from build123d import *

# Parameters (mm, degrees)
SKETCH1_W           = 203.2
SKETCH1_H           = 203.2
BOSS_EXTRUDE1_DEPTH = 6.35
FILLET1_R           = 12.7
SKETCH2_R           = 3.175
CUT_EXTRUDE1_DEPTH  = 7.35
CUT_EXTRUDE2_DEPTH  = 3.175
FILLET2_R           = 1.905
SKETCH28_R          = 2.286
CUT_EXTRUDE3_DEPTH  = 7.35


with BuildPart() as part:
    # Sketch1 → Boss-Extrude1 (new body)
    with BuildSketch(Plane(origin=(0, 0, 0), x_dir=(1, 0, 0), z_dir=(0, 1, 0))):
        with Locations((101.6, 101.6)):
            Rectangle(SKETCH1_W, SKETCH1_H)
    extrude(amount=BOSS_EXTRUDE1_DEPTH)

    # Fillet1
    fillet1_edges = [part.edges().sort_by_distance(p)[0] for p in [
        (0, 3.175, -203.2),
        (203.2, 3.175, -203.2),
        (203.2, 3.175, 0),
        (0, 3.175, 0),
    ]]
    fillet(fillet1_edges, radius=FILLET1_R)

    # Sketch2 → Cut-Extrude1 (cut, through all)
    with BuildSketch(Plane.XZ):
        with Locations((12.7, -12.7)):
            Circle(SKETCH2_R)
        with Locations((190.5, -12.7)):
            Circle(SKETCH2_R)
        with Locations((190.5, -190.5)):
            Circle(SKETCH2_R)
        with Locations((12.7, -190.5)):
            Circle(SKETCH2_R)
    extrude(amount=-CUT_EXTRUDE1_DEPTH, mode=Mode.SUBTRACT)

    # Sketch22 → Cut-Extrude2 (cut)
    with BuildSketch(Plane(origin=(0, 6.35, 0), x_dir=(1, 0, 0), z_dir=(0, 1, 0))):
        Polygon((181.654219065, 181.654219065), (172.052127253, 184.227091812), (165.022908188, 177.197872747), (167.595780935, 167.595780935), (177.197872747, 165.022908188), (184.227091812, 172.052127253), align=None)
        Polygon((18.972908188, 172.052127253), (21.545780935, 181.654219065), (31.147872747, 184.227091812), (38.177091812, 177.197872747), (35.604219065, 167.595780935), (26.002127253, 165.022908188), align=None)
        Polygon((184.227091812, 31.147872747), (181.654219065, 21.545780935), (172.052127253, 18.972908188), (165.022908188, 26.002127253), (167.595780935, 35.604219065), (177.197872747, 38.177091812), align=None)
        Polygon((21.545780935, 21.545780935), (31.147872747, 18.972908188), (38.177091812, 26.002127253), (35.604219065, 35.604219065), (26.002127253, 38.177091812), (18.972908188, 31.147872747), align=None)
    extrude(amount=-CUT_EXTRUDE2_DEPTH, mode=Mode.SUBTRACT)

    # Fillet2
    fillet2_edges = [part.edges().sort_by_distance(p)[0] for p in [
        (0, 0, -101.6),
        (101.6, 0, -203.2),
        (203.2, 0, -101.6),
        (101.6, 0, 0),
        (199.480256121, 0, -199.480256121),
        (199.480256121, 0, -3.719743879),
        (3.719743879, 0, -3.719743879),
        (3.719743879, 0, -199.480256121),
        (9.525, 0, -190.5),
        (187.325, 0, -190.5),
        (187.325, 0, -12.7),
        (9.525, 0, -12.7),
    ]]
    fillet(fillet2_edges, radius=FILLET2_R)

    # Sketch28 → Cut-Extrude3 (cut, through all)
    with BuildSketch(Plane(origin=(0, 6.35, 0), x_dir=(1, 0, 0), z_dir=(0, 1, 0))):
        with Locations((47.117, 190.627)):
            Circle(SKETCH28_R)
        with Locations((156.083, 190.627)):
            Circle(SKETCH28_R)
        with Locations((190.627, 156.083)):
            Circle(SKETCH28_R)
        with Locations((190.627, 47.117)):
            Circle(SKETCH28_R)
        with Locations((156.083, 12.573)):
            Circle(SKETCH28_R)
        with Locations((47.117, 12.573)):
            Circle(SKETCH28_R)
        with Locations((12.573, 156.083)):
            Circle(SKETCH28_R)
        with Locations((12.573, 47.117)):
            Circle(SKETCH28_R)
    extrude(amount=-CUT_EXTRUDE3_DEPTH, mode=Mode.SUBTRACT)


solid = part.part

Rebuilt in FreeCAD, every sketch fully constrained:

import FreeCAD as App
import Part
import Sketcher

V = App.Vector
Q = App.Units.Quantity


def edges_at(feature, points):
    """Names of the edges that pass closest to the given points."""
    edges = feature.Shape.Edges
    near = lambda p: min(range(len(edges)), key=lambda i: edges[i].distToShape(Part.Vertex(*p))[0])
    return sorted({f"Edge{near(p) + 1}" for p in points})

doc = App.newDocument("Part")
body = doc.addObject("PartDesign::Body", "Body")

sketch1 = body.newObject("Sketcher::SketchObject", "Sketch")
sketch1.AttachmentSupport = (doc.getObject("XZ_Plane"), [""])
sketch1.MapMode = "FlatFace"
sketch1.addGeometry(Part.LineSegment(V(0, -203, 0), V(0, 0, 0)), False)
sketch1.addGeometry(Part.LineSegment(V(0, 0, 0), V(203, 0, 0)), False)
sketch1.addGeometry(Part.LineSegment(V(203, 0, 0), V(203, -203, 0)), False)
sketch1.addGeometry(Part.LineSegment(V(203, -203, 0), V(0, -203, 0)), False)
sketch1.addConstraint(Sketcher.Constraint("Coincident", 0, 2, 1, 1))
sketch1.addConstraint(Sketcher.Constraint("Coincident", 1, 2, 2, 1))
sketch1.addConstraint(Sketcher.Constraint("Coincident", 2, 2, 3, 1))
sketch1.addConstraint(Sketcher.Constraint("Coincident", 3, 2, 0, 1))
sketch1.addConstraint(Sketcher.Constraint("Vertical", 0))
sketch1.addConstraint(Sketcher.Constraint("Horizontal", 1))
sketch1.addConstraint(Sketcher.Constraint("Vertical", 2))
sketch1.addConstraint(Sketcher.Constraint("Horizontal", 3))
sketch1.addConstraint(Sketcher.Constraint("Coincident", 0, 2, -1, 1))
sketch1.addConstraint(Sketcher.Constraint("Equal", 3, 0))
sketch1.addConstraint(Sketcher.Constraint("DistanceX", 1, 1, 1, 2, Q("8 in")))
pad1 = body.newObject("PartDesign::Pad", "Pad")
pad1.Profile = sketch1
pad1.Length = Q("0.25 in")
pad1.Reversed = True
doc.recompute()

fillet = body.newObject("PartDesign::Fillet", "Fillet")
fillet.Base = (pad1, edges_at(pad1, [
    (0, 3.175, -203.2),
    (203.2, 3.175, -203.2),
    (203.2, 3.175, 0),
    (0, 3.175, 0),
]))
fillet.Radius = Q("0.5 in")

sketch2 = body.newObject("Sketcher::SketchObject", "Sketch001")
sketch2.AttachmentSupport = (doc.getObject("XZ_Plane"), [""])
sketch2.MapMode = "FlatFace"
sketch2.addGeometry(Part.Circle(V(12.7, -12.7, 0), V(0, 0, 1), 3.2), False)
sketch2.addGeometry(Part.Circle(V(190.5, -12.7, 0), V(0, 0, 1), 3.2), False)
sketch2.addGeometry(Part.Circle(V(190.5, -190.5, 0), V(0, 0, 1), 3.2), False)
sketch2.addGeometry(Part.Circle(V(12.7, -190.5, 0), V(0, 0, 1), 3.2), False)
sketch2.addConstraint(Sketcher.Constraint("Equal", 0, 1))
sketch2.addConstraint(Sketcher.Constraint("Equal", 1, 2))
sketch2.addConstraint(Sketcher.Constraint("Equal", 2, 3))
sketch2.addConstraint(Sketcher.Constraint("Horizontal", 0, 3, 1, 3))
sketch2.addConstraint(Sketcher.Constraint("Horizontal", 2, 3, 3, 3))
sketch2.addConstraint(Sketcher.Constraint("Vertical", 1, 3, 2, 3))
sketch2.addConstraint(Sketcher.Constraint("Vertical", 0, 3, 3, 3))
sketch2.addConstraint(Sketcher.Constraint("Diameter", 0, Q("0.25 in")))
sketch2.addConstraint(Sketcher.Constraint("DistanceX", 0, 3, 1, 3, Q("7 in")))
sketch2.addConstraint(Sketcher.Constraint("DistanceY", 2, 3, 1, 3, Q("7 in")))
sketch2.addConstraint(Sketcher.Constraint("DistanceX", -1, 1, 0, 3, Q("0.5 in")))
sketch2.addConstraint(Sketcher.Constraint("DistanceY", 0, 3, -1, 1, Q("0.5 in")))
pocket1 = body.newObject("PartDesign::Pocket", "Pocket")
pocket1.Profile = sketch2
pocket1.Type = "ThroughAll"

sketch3 = body.newObject("Sketcher::SketchObject", "Sketch002")
sketch3.AttachmentSupport = (doc.getObject("XZ_Plane"), [""])
sketch3.MapMode = "FlatFace"
sketch3.AttachmentOffset = App.Placement(V(0, 0, -0.25 * 25.4), App.Rotation())
sketch3.addGeometry(Part.LineSegment(V(182, -182, 0), V(172, -184, 0)), False)
sketch3.addGeometry(Part.LineSegment(V(172, -184, 0), V(165, -177, 0)), False)
sketch3.addGeometry(Part.LineSegment(V(165, -177, 0), V(168, -168, 0)), False)
sketch3.addGeometry(Part.LineSegment(V(168, -168, 0), V(177, -165, 0)), False)
sketch3.addGeometry(Part.LineSegment(V(177, -165, 0), V(184, -172, 0)), False)
sketch3.addGeometry(Part.LineSegment(V(184, -172, 0), V(182, -182, 0)), False)
sketch3.addGeometry(Part.LineSegment(V(22, -182, 0), V(19, -172, 0)), False)
sketch3.addGeometry(Part.LineSegment(V(19, -172, 0), V(26, -165, 0)), False)
sketch3.addGeometry(Part.LineSegment(V(26, -165, 0), V(36, -168, 0)), False)
sketch3.addGeometry(Part.LineSegment(V(36, -168, 0), V(38, -177, 0)), False)
sketch3.addGeometry(Part.LineSegment(V(38, -177, 0), V(31, -184, 0)), False)
sketch3.addGeometry(Part.LineSegment(V(31, -184, 0), V(22, -182, 0)), False)
sketch3.addGeometry(Part.LineSegment(V(182, -22, 0), V(184, -31, 0)), False)
sketch3.addGeometry(Part.LineSegment(V(184, -31, 0), V(177, -38, 0)), False)
sketch3.addGeometry(Part.LineSegment(V(177, -38, 0), V(168, -36, 0)), False)
sketch3.addGeometry(Part.LineSegment(V(168, -36, 0), V(165, -26, 0)), False)
sketch3.addGeometry(Part.LineSegment(V(165, -26, 0), V(172, -19, 0)), False)
sketch3.addGeometry(Part.LineSegment(V(172, -19, 0), V(182, -22, 0)), False)
sketch3.addGeometry(Part.LineSegment(V(22, -22, 0), V(31, -19, 0)), False)
sketch3.addGeometry(Part.LineSegment(V(31, -19, 0), V(38, -26, 0)), False)
sketch3.addGeometry(Part.LineSegment(V(38, -26, 0), V(36, -36, 0)), False)
sketch3.addGeometry(Part.LineSegment(V(36, -36, 0), V(26, -38, 0)), False)
sketch3.addGeometry(Part.LineSegment(V(26, -38, 0), V(19, -31, 0)), False)
sketch3.addGeometry(Part.LineSegment(V(19, -31, 0), V(22, -22, 0)), False)
sketch3.addConstraint(Sketcher.Constraint("Coincident", 0, 2, 1, 1))
sketch3.addConstraint(Sketcher.Constraint("Coincident", 1, 2, 2, 1))
sketch3.addConstraint(Sketcher.Constraint("Coincident", 2, 2, 3, 1))
sketch3.addConstraint(Sketcher.Constraint("Coincident", 3, 2, 4, 1))
sketch3.addConstraint(Sketcher.Constraint("Coincident", 4, 2, 5, 1))
sketch3.addConstraint(Sketcher.Constraint("Coincident", 5, 2, 0, 1))
sketch3.addConstraint(Sketcher.Constraint("Coincident", 6, 2, 7, 1))
sketch3.addConstraint(Sketcher.Constraint("Coincident", 7, 2, 8, 1))
sketch3.addConstraint(Sketcher.Constraint("Coincident", 8, 2, 9, 1))
sketch3.addConstraint(Sketcher.Constraint("Coincident", 9, 2, 10, 1))
sketch3.addConstraint(Sketcher.Constraint("Coincident", 10, 2, 11, 1))
sketch3.addConstraint(Sketcher.Constraint("Coincident", 11, 2, 6, 1))
sketch3.addConstraint(Sketcher.Constraint("Coincident", 12, 2, 13, 1))
sketch3.addConstraint(Sketcher.Constraint("Coincident", 13, 2, 14, 1))
sketch3.addConstraint(Sketcher.Constraint("Coincident", 14, 2, 15, 1))
sketch3.addConstraint(Sketcher.Constraint("Coincident", 15, 2, 16, 1))
sketch3.addConstraint(Sketcher.Constraint("Coincident", 16, 2, 17, 1))
sketch3.addConstraint(Sketcher.Constraint("Coincident", 17, 2, 12, 1))
sketch3.addConstraint(Sketcher.Constraint("Coincident", 18, 2, 19, 1))
sketch3.addConstraint(Sketcher.Constraint("Coincident", 19, 2, 20, 1))
sketch3.addConstraint(Sketcher.Constraint("Coincident", 20, 2, 21, 1))
sketch3.addConstraint(Sketcher.Constraint("Coincident", 21, 2, 22, 1))
sketch3.addConstraint(Sketcher.Constraint("Coincident", 22, 2, 23, 1))
sketch3.addConstraint(Sketcher.Constraint("Coincident", 23, 2, 18, 1))
sketch3.addConstraint(Sketcher.Constraint("Parallel", 0, 3))
sketch3.addConstraint(Sketcher.Constraint("Parallel", 1, 4))
sketch3.addConstraint(Sketcher.Constraint("Parallel", 2, 5))
sketch3.addConstraint(Sketcher.Constraint("Perpendicular", 3, 6))
sketch3.addConstraint(Sketcher.Constraint("Perpendicular", 4, 7))
sketch3.addConstraint(Sketcher.Constraint("Perpendicular", 5, 8))
sketch3.addConstraint(Sketcher.Constraint("Parallel", 6, 9))
sketch3.addConstraint(Sketcher.Constraint("Parallel", 7, 10))
sketch3.addConstraint(Sketcher.Constraint("Parallel", 8, 11))
sketch3.addConstraint(Sketcher.Constraint("Parallel", 9, 12))
sketch3.addConstraint(Sketcher.Constraint("Parallel", 10, 13))
sketch3.addConstraint(Sketcher.Constraint("Parallel", 11, 14))
sketch3.addConstraint(Sketcher.Constraint("Parallel", 12, 15))
sketch3.addConstraint(Sketcher.Constraint("Parallel", 13, 16))
sketch3.addConstraint(Sketcher.Constraint("Parallel", 14, 17))
sketch3.addConstraint(Sketcher.Constraint("Perpendicular", 15, 18))
sketch3.addConstraint(Sketcher.Constraint("Perpendicular", 16, 19))
sketch3.addConstraint(Sketcher.Constraint("Perpendicular", 17, 20))
sketch3.addConstraint(Sketcher.Constraint("Parallel", 18, 21))
sketch3.addConstraint(Sketcher.Constraint("Parallel", 19, 22))
sketch3.addConstraint(Sketcher.Constraint("Parallel", 20, 23))
sketch3.addConstraint(Sketcher.Constraint("Horizontal", 4, 2, 6, 2))
sketch3.addConstraint(Sketcher.Constraint("Horizontal", 3, 2, 7, 2))
sketch3.addConstraint(Sketcher.Constraint("Horizontal", 2, 2, 8, 2))
sketch3.addConstraint(Sketcher.Constraint("Horizontal", 1, 2, 9, 2))
sketch3.addConstraint(Sketcher.Constraint("Horizontal", 0, 2, 10, 2))
sketch3.addConstraint(Sketcher.Constraint("Horizontal", 16, 2, 18, 2))
sketch3.addConstraint(Sketcher.Constraint("Horizontal", 15, 2, 19, 2))
sketch3.addConstraint(Sketcher.Constraint("Horizontal", 14, 2, 20, 2))
sketch3.addConstraint(Sketcher.Constraint("Horizontal", 13, 2, 21, 2))
sketch3.addConstraint(Sketcher.Constraint("Horizontal", 12, 2, 22, 2))
sketch3.addConstraint(Sketcher.Constraint("Vertical", 4, 2, 12, 2))
sketch3.addConstraint(Sketcher.Constraint("Vertical", 3, 2, 13, 2))
sketch3.addConstraint(Sketcher.Constraint("Vertical", 2, 2, 14, 2))
sketch3.addConstraint(Sketcher.Constraint("Vertical", 1, 2, 15, 2))
sketch3.addConstraint(Sketcher.Constraint("Vertical", 0, 2, 16, 2))
sketch3.addConstraint(Sketcher.Constraint("Vertical", 10, 2, 18, 2))
sketch3.addConstraint(Sketcher.Constraint("Vertical", 9, 2, 19, 2))
sketch3.addConstraint(Sketcher.Constraint("Vertical", 8, 2, 20, 2))
sketch3.addConstraint(Sketcher.Constraint("Equal", 0, 1))
sketch3.addConstraint(Sketcher.Constraint("Equal", 1, 2))
sketch3.addConstraint(Sketcher.Constraint("Equal", 2, 3))
sketch3.addConstraint(Sketcher.Constraint("Angle", 0, Q("-165 deg")))
sketch3.addConstraint(Sketcher.Constraint("DistanceX", 6, 2, 1, 2, Q("5.75 in")))
sketch3.addConstraint(Sketcher.Constraint("DistanceY", 1, 2, 12, 2, Q("5.75 in")))
sketch3.addConstraint(Sketcher.Constraint("DistanceY", 0, 2, -1, 1, Q("184.227092 mm")))
sketch3.addConstraint(Sketcher.Constraint("DistanceX", -1, 1, 1, 2, Q("165.022908 mm")))
sketch3.addConstraint(Sketcher.Constraint("DistanceX", -1, 1, 2, 2, Q("167.595781 mm")))
pocket2 = body.newObject("PartDesign::Pocket", "Pocket001")
pocket2.Profile = sketch3
pocket2.Length = Q("0.125 in")
pocket2.Reversed = True
doc.recompute()

fillet2 = body.newObject("PartDesign::Fillet", "Fillet001")
fillet2.Base = (pocket2, edges_at(pocket2, [
    (0, 0, -101.6),
    (101.6, 0, -203.2),
    (203.2, 0, -101.6),
    (101.6, 0, 0),
    (199.48, 0, -199.48),
    (199.48, 0, -3.72),
    (3.72, 0, -3.72),
    (3.72, 0, -199.48),
    (9.525, 0, -190.5),
    (187.325, 0, -190.5),
    (187.325, 0, -12.7),
    (9.525, 0, -12.7),
]))
fillet2.Radius = Q("0.075 in")

sketch4 = body.newObject("Sketcher::SketchObject", "Sketch003")
sketch4.AttachmentSupport = (doc.getObject("XZ_Plane"), [""])
sketch4.MapMode = "FlatFace"
sketch4.AttachmentOffset = App.Placement(V(0, 0, -0.25 * 25.4), App.Rotation())
sketch4.addGeometry(Part.Circle(V(47.1, -190.6, 0), V(0, 0, 1), 2.3), False)
sketch4.addGeometry(Part.Circle(V(156.1, -190.6, 0), V(0, 0, 1), 2.3), False)
sketch4.addGeometry(Part.Circle(V(190.6, -156.1, 0), V(0, 0, 1), 2.3), False)
sketch4.addGeometry(Part.Circle(V(190.6, -47.1, 0), V(0, 0, 1), 2.3), False)
sketch4.addGeometry(Part.Circle(V(156.1, -12.6, 0), V(0, 0, 1), 2.3), False)
sketch4.addGeometry(Part.Circle(V(47.1, -12.6, 0), V(0, 0, 1), 2.3), False)
sketch4.addGeometry(Part.Circle(V(12.6, -156.1, 0), V(0, 0, 1), 2.3), False)
sketch4.addGeometry(Part.Circle(V(12.6, -47.1, 0), V(0, 0, 1), 2.3), False)
sketch4.addConstraint(Sketcher.Constraint("Equal", 0, 1))
sketch4.addConstraint(Sketcher.Constraint("Equal", 1, 2))
sketch4.addConstraint(Sketcher.Constraint("Equal", 2, 3))
sketch4.addConstraint(Sketcher.Constraint("Equal", 3, 4))
sketch4.addConstraint(Sketcher.Constraint("Equal", 4, 5))
sketch4.addConstraint(Sketcher.Constraint("Equal", 5, 6))
sketch4.addConstraint(Sketcher.Constraint("Equal", 6, 7))
sketch4.addConstraint(Sketcher.Constraint("Horizontal", 0, 3, 1, 3))
sketch4.addConstraint(Sketcher.Constraint("Horizontal", 4, 3, 5, 3))
sketch4.addConstraint(Sketcher.Constraint("Horizontal", 2, 3, 6, 3))
sketch4.addConstraint(Sketcher.Constraint("Horizontal", 3, 3, 7, 3))
sketch4.addConstraint(Sketcher.Constraint("Vertical", 2, 3, 3, 3))
sketch4.addConstraint(Sketcher.Constraint("Vertical", 1, 3, 4, 3))
sketch4.addConstraint(Sketcher.Constraint("Vertical", 0, 3, 5, 3))
sketch4.addConstraint(Sketcher.Constraint("Vertical", 6, 3, 7, 3))
sketch4.addConstraint(Sketcher.Constraint("Diameter", 0, Q("0.18 in")))
sketch4.addConstraint(Sketcher.Constraint("DistanceX", 0, 3, 1, 3, Q("4.29 in")))
sketch4.addConstraint(Sketcher.Constraint("DistanceX", 1, 3, 2, 3, Q("1.36 in")))
sketch4.addConstraint(Sketcher.Constraint("DistanceY", 1, 3, 2, 3, Q("1.36 in")))
sketch4.addConstraint(Sketcher.Constraint("DistanceY", 2, 3, 3, 3, Q("4.29 in")))
sketch4.addConstraint(Sketcher.Constraint("DistanceY", 3, 3, 4, 3, Q("1.36 in")))
sketch4.addConstraint(Sketcher.Constraint("DistanceX", 6, 3, 0, 3, Q("1.36 in")))
sketch4.addConstraint(Sketcher.Constraint("DistanceX", -1, 1, 0, 3, Q("1.855 in")))
sketch4.addConstraint(Sketcher.Constraint("DistanceY", 0, 3, -1, 1, Q("7.505 in")))
pocket3 = body.newObject("PartDesign::Pocket", "Pocket002")
pocket3.Profile = sketch4
pocket3.Type = "ThroughAll"
pocket3.Reversed = True

doc.recompute()
